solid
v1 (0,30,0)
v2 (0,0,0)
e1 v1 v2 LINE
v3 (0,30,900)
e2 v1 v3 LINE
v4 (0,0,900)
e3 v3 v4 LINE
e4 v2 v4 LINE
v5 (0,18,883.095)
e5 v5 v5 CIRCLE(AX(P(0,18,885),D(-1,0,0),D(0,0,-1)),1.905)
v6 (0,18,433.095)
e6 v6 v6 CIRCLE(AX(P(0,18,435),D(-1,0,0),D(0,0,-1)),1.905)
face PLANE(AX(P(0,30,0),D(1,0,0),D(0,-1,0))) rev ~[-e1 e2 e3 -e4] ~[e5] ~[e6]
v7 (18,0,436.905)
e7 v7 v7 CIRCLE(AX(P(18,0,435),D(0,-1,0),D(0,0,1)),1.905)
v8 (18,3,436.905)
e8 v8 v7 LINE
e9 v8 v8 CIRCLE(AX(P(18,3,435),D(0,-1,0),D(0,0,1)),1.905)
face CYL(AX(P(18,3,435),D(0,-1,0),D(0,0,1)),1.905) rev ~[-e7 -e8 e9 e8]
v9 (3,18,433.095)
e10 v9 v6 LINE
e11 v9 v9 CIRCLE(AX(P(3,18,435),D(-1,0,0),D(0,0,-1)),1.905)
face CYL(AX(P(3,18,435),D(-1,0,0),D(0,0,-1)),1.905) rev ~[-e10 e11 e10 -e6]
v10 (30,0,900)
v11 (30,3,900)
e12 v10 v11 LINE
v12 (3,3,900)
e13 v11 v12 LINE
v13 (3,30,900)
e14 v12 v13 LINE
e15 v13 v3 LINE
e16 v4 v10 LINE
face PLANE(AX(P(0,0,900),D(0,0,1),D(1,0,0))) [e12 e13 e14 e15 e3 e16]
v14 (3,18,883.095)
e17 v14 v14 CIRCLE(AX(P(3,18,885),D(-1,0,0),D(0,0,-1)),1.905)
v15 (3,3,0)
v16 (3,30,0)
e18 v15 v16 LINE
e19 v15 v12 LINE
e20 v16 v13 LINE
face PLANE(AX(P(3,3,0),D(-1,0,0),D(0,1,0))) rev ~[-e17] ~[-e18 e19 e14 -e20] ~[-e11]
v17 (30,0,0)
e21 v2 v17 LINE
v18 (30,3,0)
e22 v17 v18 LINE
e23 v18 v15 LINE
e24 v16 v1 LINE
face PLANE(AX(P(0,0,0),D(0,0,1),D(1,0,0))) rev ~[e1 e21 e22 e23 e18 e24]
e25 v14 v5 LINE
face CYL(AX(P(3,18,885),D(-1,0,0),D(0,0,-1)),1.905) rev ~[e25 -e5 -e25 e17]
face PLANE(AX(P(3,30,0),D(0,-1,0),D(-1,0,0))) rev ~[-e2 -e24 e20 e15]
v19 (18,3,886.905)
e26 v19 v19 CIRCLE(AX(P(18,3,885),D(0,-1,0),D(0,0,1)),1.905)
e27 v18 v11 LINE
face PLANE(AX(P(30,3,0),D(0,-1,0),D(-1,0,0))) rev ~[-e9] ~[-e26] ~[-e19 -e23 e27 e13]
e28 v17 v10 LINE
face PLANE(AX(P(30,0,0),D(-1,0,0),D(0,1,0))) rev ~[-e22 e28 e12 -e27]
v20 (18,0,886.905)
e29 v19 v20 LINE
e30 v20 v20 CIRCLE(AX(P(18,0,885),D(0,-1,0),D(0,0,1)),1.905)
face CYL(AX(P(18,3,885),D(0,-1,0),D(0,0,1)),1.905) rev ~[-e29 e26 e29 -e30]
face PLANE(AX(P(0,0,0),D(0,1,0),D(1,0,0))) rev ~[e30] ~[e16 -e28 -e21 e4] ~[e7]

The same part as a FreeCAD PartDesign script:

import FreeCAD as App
import Part
import Sketcher
Q = App.Units.Quantity


def add_polygon(sketch, points):
    """Adds a closed chain of lines whose ends are joined by coincident constraints."""
    first, n = sketch.GeometryCount, len(points)
    for a, b in zip(points, points[1:] + points[:1]):
        sketch.addGeometry(Part.LineSegment(App.Vector(*a, 0), App.Vector(*b, 0)), False)
    for i in range(n):
        sketch.addConstraint(Sketcher.Constraint("Coincident", first + i, 2, first + (i + 1) % n, 1))

doc = App.newDocument("Part")
body = doc.addObject("PartDesign::Body", "Body")

# Sketch on XY plane
sketch1 = body.newObject("Sketcher::SketchObject", "Sketch")
sketch1.AttachmentSupport = (doc.getObject("XY_Plane"), [""])
sketch1.MapMode = "FlatFace"
add_polygon(sketch1, [(0, 30), (0, 0), (30, 0), (30, 3), (3, 3), (3, 30)])  # lines 0-5
sketch1.addConstraint([
    Sketcher.Constraint("Vertical", 0),
    Sketcher.Constraint("Horizontal", 1),
    Sketcher.Constraint("Vertical", 2),
    Sketcher.Constraint("Horizontal", 3),
    Sketcher.Constraint("Vertical", 4),
    Sketcher.Constraint("Horizontal", 5),
    Sketcher.Constraint("Coincident", 0, 2, -1, 1),
    Sketcher.Constraint("Equal", 1, 0),
    Sketcher.Constraint("Equal", 5, 2),
    Sketcher.Constraint("DistanceX", 1, 1, 1, 2, Q("1.1811 in")),
    Sketcher.Constraint("DistanceX", 5, 2, 5, 1, Q("0.1181 in")),
])
pad1 = body.newObject("PartDesign::Pad", "Pad")
pad1.Profile = sketch1
pad1.Length = 900

# Sketch on XZ plane
sketch2 = body.newObject("Sketcher::SketchObject", "Sketch001")
sketch2.AttachmentSupport = (doc.getObject("XZ_Plane"), [""])
sketch2.MapMode = "FlatFace"
sketch2.AttachmentOffset = App.Placement(App.Vector(0, 0, -0.1181102 * 25.4), App.Rotation())
sketch2.addGeometry([
    Part.Circle(App.Vector(18, 885, 0), App.Vector(0, 0, 1), 1.9),
    Part.Circle(App.Vector(18, 435, 0), App.Vector(0, 0, 1), 1.9),
    Part.Circle(App.Vector(18, -15, 0), App.Vector(0, 0, 1), 1.9),
    Part.Circle(App.Vector(18, -465, 0), App.Vector(0, 0, 1), 1.9),
], False)
sketch2.addConstraint([
    Sketcher.Constraint("Equal", 0, 1),
    Sketcher.Constraint("Equal", 1, 2),
    Sketcher.Constraint("Equal", 2, 3),
    Sketcher.Constraint("Vertical", 0, 3, 1, 3),
    Sketcher.Constraint("Vertical", 1, 3, 2, 3),
    Sketcher.Constraint("Vertical", 2, 3, 3, 3),
    Sketcher.Constraint("Diameter", 0, Q("0.15 in")),
    Sketcher.Constraint("DistanceY", 3, 3, 0, 3, Q("53.1496 in")),
    Sketcher.Constraint("DistanceX", -1, 1, 0, 3, Q("18 mm")),
    Sketcher.Constraint("DistanceY", -1, 1, 0, 3, Q("885 mm")),
    Sketcher.Constraint("DistanceY", -1, 1, 1, 3, Q("435 mm")),
    Sketcher.Constraint("DistanceY", 2, 3, -1, 1, Q("15 mm")),
])
doc.recompute()
hole = body.newObject("PartDesign::Hole", "Hole")
hole.Profile = sketch2
hole.ThreadType = "None"
hole.Diameter = Q("0.15 in")
hole.DepthType = "ThroughAll"
hole.Reversed = True

# Sketch on YZ plane
sketch3 = body.newObject("Sketcher::SketchObject", "Sketch002")
sketch3.AttachmentSupport = (doc.getObject("YZ_Plane"), [""])
sketch3.MapMode = "FlatFace"
sketch3.AttachmentOffset = App.Placement(App.Vector(0, 0, 0.1181102 * 25.4), App.Rotation())
sketch3.addGeometry([
    Part.Circle(App.Vector(18, 885, 0), App.Vector(0, 0, 1), 1.9),
    Part.Circle(App.Vector(18, 435, 0), App.Vector(0, 0, 1), 1.9),
    Part.Circle(App.Vector(18, -15, 0), App.Vector(0, 0, 1), 1.9),
    Part.Circle(App.Vector(18, -465, 0), App.Vector(0, 0, 1), 1.9),
], False)
sketch3.addConstraint([
    Sketcher.Constraint("Equal", 0, 1),
    Sketcher.Constraint("Equal", 1, 2),
    Sketcher.Constraint("Equal", 2, 3),
    Sketcher.Constraint("Vertical", 0, 3, 1, 3),
    Sketcher.Constraint("Vertical", 1, 3, 2, 3),
    Sketcher.Constraint("Vertical", 2, 3, 3, 3),
    Sketcher.Constraint("Diameter", 0, Q("0.15 in")),
    Sketcher.Constraint("DistanceY", 3, 3, 0, 3, Q("53.1496 in")),
    Sketcher.Constraint("DistanceX", -1, 1, 0, 3, Q("18 mm")),
    Sketcher.Constraint("DistanceY", -1, 1, 0, 3, Q("885 mm")),
    Sketcher.Constraint("DistanceY", -1, 1, 1, 3, Q("435 mm")),
    Sketcher.Constraint("DistanceY", 2, 3, -1, 1, Q("15 mm")),
])
doc.recompute()
hole2 = body.newObject("PartDesign::Hole", "Hole001")
hole2.Profile = sketch3
hole2.ThreadType = "None"
hole2.Diameter = Q("0.15 in")
hole2.DepthType = "ThroughAll"

doc.recompute()
